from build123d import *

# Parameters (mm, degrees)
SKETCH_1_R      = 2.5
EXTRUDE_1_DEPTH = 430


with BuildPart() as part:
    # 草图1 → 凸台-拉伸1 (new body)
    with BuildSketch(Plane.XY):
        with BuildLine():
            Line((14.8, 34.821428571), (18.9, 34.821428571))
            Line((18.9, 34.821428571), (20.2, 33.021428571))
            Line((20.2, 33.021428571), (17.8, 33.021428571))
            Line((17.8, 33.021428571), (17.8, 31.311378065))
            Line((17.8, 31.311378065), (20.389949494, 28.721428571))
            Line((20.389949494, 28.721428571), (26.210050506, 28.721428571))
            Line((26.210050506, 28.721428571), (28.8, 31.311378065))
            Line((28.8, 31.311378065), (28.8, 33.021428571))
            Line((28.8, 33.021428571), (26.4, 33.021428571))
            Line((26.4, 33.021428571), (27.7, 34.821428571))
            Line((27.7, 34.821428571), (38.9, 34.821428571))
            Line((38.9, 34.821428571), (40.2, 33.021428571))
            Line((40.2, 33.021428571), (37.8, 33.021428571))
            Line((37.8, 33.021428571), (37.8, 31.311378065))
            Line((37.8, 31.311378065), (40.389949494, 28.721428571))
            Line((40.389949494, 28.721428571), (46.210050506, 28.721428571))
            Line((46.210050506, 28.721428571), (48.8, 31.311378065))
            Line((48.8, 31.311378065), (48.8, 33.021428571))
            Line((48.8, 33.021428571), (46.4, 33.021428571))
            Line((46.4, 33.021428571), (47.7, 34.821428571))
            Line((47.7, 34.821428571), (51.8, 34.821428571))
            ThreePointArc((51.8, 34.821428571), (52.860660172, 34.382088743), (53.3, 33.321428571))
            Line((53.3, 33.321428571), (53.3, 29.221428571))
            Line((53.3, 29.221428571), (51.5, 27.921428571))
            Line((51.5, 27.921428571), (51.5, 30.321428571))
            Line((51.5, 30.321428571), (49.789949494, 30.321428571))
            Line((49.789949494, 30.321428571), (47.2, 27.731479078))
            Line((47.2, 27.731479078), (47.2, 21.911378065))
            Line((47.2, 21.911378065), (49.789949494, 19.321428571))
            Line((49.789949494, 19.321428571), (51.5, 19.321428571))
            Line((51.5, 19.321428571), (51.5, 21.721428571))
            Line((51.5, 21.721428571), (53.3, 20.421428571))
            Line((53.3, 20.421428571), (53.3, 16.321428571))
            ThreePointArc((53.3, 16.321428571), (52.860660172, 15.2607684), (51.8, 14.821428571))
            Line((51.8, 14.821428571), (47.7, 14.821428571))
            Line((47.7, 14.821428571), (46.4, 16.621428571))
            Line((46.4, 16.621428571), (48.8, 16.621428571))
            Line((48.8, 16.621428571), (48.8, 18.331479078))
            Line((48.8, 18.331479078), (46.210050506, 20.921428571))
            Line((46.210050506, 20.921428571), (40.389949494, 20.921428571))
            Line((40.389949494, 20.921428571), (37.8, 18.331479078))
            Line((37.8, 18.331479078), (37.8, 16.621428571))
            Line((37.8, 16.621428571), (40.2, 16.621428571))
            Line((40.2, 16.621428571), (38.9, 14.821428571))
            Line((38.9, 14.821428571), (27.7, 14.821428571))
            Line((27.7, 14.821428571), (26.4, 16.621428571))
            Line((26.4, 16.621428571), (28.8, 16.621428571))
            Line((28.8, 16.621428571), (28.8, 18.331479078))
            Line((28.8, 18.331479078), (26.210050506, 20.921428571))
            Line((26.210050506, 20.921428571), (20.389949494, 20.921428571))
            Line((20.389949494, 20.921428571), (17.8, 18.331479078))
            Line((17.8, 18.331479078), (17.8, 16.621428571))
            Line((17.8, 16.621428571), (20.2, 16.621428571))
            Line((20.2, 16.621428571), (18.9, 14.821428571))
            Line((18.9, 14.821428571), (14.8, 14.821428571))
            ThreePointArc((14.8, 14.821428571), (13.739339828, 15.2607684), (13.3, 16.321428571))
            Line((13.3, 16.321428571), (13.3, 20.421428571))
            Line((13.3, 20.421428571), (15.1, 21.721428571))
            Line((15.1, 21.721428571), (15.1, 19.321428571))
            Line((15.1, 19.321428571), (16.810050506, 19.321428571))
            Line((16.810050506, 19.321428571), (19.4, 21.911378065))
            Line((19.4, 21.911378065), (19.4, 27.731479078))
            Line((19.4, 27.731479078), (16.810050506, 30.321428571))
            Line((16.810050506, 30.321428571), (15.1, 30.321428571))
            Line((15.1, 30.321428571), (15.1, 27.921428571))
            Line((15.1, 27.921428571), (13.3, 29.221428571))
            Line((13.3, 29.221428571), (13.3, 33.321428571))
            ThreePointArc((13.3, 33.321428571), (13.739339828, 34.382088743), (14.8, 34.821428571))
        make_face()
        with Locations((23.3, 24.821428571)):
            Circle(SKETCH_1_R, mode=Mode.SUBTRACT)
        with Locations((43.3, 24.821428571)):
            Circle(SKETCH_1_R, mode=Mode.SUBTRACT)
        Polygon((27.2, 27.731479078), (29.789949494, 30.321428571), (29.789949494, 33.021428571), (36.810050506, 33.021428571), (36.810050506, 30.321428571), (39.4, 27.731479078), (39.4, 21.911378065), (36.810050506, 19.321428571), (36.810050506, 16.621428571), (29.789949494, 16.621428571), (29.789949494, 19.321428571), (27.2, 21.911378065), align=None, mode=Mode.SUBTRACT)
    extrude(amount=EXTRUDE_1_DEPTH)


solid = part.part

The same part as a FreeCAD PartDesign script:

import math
import FreeCAD as App
import Part
import Sketcher
from FreeCAD import Vector
Q = App.Units.Quantity


def add_polygon(sketch, points):
    """Adds a closed chain of lines whose ends are joined by coincident constraints."""
    first, n = sketch.GeometryCount, len(points)
    for a, b in zip(points, points[1:] + points[:1]):
        sketch.addGeometry(Part.LineSegment(App.Vector(*a, 0), App.Vector(*b, 0)), False)
    for i in range(n):
        sketch.addConstraint(Sketcher.Constraint("Coincident", first + i, 2, first + (i + 1) % n, 1))

doc = App.newDocument("Part")
body = doc.addObject("PartDesign::Body", "Body")

sketch1 = doc.addObject("Sketcher::SketchObject", "Sketch")
body.addObject(sketch1)
sketch1.AttachmentSupport = (doc.XY_Plane, [""])
sketch1.MapMode = "FlatFace"
sketch1.addGeometry(Part.LineSegment(Vector(18.9, 34.8, 0), Vector(14.8, 34.8, 0)), False)
sketch1.addGeometry(Part.ArcOfCircle(Part.Circle(Vector(14.8, 33.3, 0), Vector(0, 0, 1), 1.5), math.radians(90), math.radians(180)), False)
sketch1.addGeometry(Part.LineSegment(Vector(13.3, 33.3, 0), Vector(13.3, 29.2, 0)), False)
sketch1.addGeometry(Part.LineSegment(Vector(13.3, 29.2, 0), Vector(15.1, 27.9, 0)), False)
sketch1.addGeometry(Part.LineSegment(Vector(15.1, 27.9, 0), Vector(15.1, 30.3, 0)), False)
sketch1.addGeometry(Part.LineSegment(Vector(15.1, 30.3, 0), Vector(16.8, 30.3, 0)), False)
sketch1.addGeometry(Part.LineSegment(Vector(16.8, 30.3, 0), Vector(19.4, 27.7, 0)), False)
sketch1.addGeometry(Part.LineSegment(Vector(19.4, 27.7, 0), Vector(19.4, 21.9, 0)), False)
sketch1.addGeometry(Part.LineSegment(Vector(19.4, 21.9, 0), Vector(16.8, 19.3, 0)), False)
sketch1.addGeometry(Part.LineSegment(Vector(16.8, 19.3, 0), Vector(15.1, 19.3, 0)), False)
sketch1.addGeometry(Part.LineSegment(Vector(15.1, 19.3, 0), Vector(15.1, 21.7, 0)), False)
sketch1.addGeometry(Part.LineSegment(Vector(15.1, 21.7, 0), Vector(13.3, 20.4, 0)), False)
sketch1.addGeometry(Part.LineSegment(Vector(13.3, 20.4, 0), Vector(13.3, 16.3, 0)), False)
sketch1.addGeometry(Part.ArcOfCircle(Part.Circle(Vector(14.8, 16.3, 0), Vector(0, 0, 1), 1.5), math.radians(-180), math.radians(-90)), False)
sketch1.addGeometry(Part.LineSegment(Vector(14.8, 14.8, 0), Vector(18.9, 14.8, 0)), False)
sketch1.addGeometry(Part.LineSegment(Vector(18.9, 14.8, 0), Vector(20.2, 16.6, 0)), False)
sketch1.addGeometry(Part.LineSegment(Vector(20.2, 16.6, 0), Vector(17.8, 16.6, 0)), False)
sketch1.addGeometry(Part.LineSegment(Vector(17.8, 16.6, 0), Vector(17.8, 18.3, 0)), False)
sketch1.addGeometry(Part.LineSegment(Vector(17.8, 18.3, 0), Vector(20.4, 20.9, 0)), False)
sketch1.addGeometry(Part.LineSegment(Vector(20.4, 20.9, 0), Vector(26.2, 20.9, 0)), False)
sketch1.addGeometry(Part.LineSegment(Vector(26.2, 20.9, 0), Vector(28.8, 18.3, 0)), False)
sketch1.addGeometry(Part.LineSegment(Vector(28.8, 18.3, 0), Vector(28.8, 16.6, 0)), False)
sketch1.addGeometry(Part.LineSegment(Vector(28.8, 16.6, 0), Vector(26.4, 16.6, 0)), False)
sketch1.addGeometry(Part.LineSegment(Vector(26.4, 16.6, 0), Vector(27.7, 14.8, 0)), False)
sketch1.addGeometry(Part.LineSegment(Vector(27.7, 14.8, 0), Vector(38.9, 14.8, 0)), False)
sketch1.addGeometry(Part.LineSegment(Vector(38.9, 14.8, 0), Vector(40.2, 16.6, 0)), False)
sketch1.addGeometry(Part.LineSegment(Vector(40.2, 16.6, 0), Vector(37.8, 16.6, 0)), False)
sketch1.addGeometry(Part.LineSegment(Vector(37.8, 16.6, 0), Vector(37.8, 18.3, 0)), False)
sketch1.addGeometry(Part.LineSegment(Vector(37.8, 18.3, 0), Vector(40.4, 20.9, 0)), False)
sketch1.addGeometry(Part.LineSegment(Vector(40.4, 20.9, 0), Vector(46.2, 20.9, 0)), False)
sketch1.addGeometry(Part.LineSegment(Vector(46.2, 20.9, 0), Vector(48.8, 18.3, 0)), False)
sketch1.addGeometry(Part.LineSegment(Vector(48.8, 18.3, 0), Vector(48.8, 16.6, 0)), False)
sketch1.addGeometry(Part.LineSegment(Vector(48.8, 16.6, 0), Vector(46.4, 16.6, 0)), False)
sketch1.addGeometry(Part.LineSegment(Vector(46.4, 16.6, 0), Vector(47.7, 14.8, 0)), False)
sketch1.addGeometry(Part.LineSegment(Vector(47.7, 14.8, 0), Vector(51.8, 14.8, 0)), False)
sketch1.addGeometry(Part.ArcOfCircle(Part.Circle(Vector(51.8, 16.3, 0), Vector(0, 0, 1), 1.5), math.radians(-90), math.radians(0)), False)
sketch1.addGeometry(Part.LineSegment(Vector(53.3, 16.3, 0), Vector(53.3, 20.4, 0)), False)
sketch1.addGeometry(Part.LineSegment(Vector(53.3, 20.4, 0), Vector(51.5, 21.7, 0)), False)
sketch1.addGeometry(Part.LineSegment(Vector(51.5, 21.7, 0), Vector(51.5, 19.3, 0)), False)
sketch1.addGeometry(Part.LineSegment(Vector(51.5, 19.3, 0), Vector(49.8, 19.3, 0)), False)
sketch1.addGeometry(Part.LineSegment(Vector(49.8, 19.3, 0), Vector(47.2, 21.9, 0)), False)
sketch1.addGeometry(Part.LineSegment(Vector(47.2, 21.9, 0), Vector(47.2, 27.7, 0)), False)
sketch1.addGeometry(Part.LineSegment(Vector(47.2, 27.7, 0), Vector(49.8, 30.3, 0)), False)
sketch1.addGeometry(Part.LineSegment(Vector(49.8, 30.3, 0), Vector(51.5, 30.3, 0)), False)
sketch1.addGeometry(Part.LineSegment(Vector(51.5, 30.3, 0), Vector(51.5, 27.9, 0)), False)
sketch1.addGeometry(Part.LineSegment(Vector(51.5, 27.9, 0), Vector(53.3, 29.2, 0)), False)
sketch1.addGeometry(Part.LineSegment(Vector(53.3, 29.2, 0), Vector(53.3, 33.3, 0)), False)
sketch1.addGeometry(Part.ArcOfCircle(Part.Circle(Vector(51.8, 33.3, 0), Vector(0, 0, 1), 1.5), math.radians(0), math.radians(90)), False)
sketch1.addGeometry(Part.LineSegment(Vector(51.8, 34.8, 0), Vector(47.7, 34.8, 0)), False)
sketch1.addGeometry(Part.LineSegment(Vector(47.7, 34.8, 0), Vector(46.4, 33, 0)), False)
sketch1.addGeometry(Part.LineSegment(Vector(46.4, 33, 0), Vector(48.8, 33, 0)), False)
sketch1.addGeometry(Part.LineSegment(Vector(48.8, 33, 0), Vector(48.8, 31.3, 0)), False)
sketch1.addGeometry(Part.LineSegment(Vector(48.8, 31.3, 0), Vector(46.2, 28.7, 0)), False)
sketch1.addGeometry(Part.LineSegment(Vector(46.2, 28.7, 0), Vector(40.4, 28.7, 0)), False)
sketch1.addGeometry(Part.LineSegment(Vector(40.4, 28.7, 0), Vector(37.8, 31.3, 0)), False)
sketch1.addGeometry(Part.LineSegment(Vector(37.8, 31.3, 0), Vector(37.8, 33, 0)), False)
sketch1.addGeometry(Part.LineSegment(Vector(37.8, 33, 0), Vector(40.2, 33, 0)), False)
sketch1.addGeometry(Part.LineSegment(Vector(40.2, 33, 0), Vector(38.9, 34.8, 0)), False)
sketch1.addGeometry(Part.LineSegment(Vector(38.9, 34.8, 0), Vector(27.7, 34.8, 0)), False)
sketch1.addGeometry(Part.LineSegment(Vector(27.7, 34.8, 0), Vector(26.4, 33, 0)), False)
sketch1.addGeometry(Part.LineSegment(Vector(26.4, 33, 0), Vector(28.8, 33, 0)), False)
sketch1.addGeometry(Part.LineSegment(Vector(28.8, 33, 0), Vector(28.8, 31.3, 0)), False)
sketch1.addGeometry(Part.LineSegment(Vector(28.8, 31.3, 0), Vector(26.2, 28.7, 0)), False)
sketch1.addGeometry(Part.LineSegment(Vector(26.2, 28.7, 0), Vector(20.4, 28.7, 0)), False)
sketch1.addGeometry(Part.LineSegment(Vector(20.4, 28.7, 0), Vector(17.8, 31.3, 0)), False)
sketch1.addGeometry(Part.LineSegment(Vector(17.8, 31.3, 0), Vector(17.8, 33, 0)), False)
sketch1.addGeometry(Part.LineSegment(Vector(17.8, 33, 0), Vector(20.2, 33, 0)), False)
sketch1.addGeometry(Part.LineSegment(Vector(20.2, 33, 0), Vector(18.9, 34.8, 0)), False)
sketch1.addGeometry(Part.Circle(Vector(43.3, 24.8, 0), Vector(0, 0, 1), 2.5), False)
sketch1.addGeometry(Part.Circle(Vector(23.3, 24.8, 0), Vector(0, 0, 1), 2.5), False)
add_polygon(sketch1, [(27.2, 27.7), (29.8, 30.3), (29.8, 33), (36.8, 33), (36.8, 30.3), (39.4, 27.7), (39.4, 21.9), (36.8, 19.3), (36.8, 16.6), (29.8, 16.6), (29.8, 19.3), (27.2, 21.9)])
sketch1.addConstraint(Sketcher.Constraint("Tangent", 0, 2, 1, 1))
sketch1.addConstraint(Sketcher.Constraint("Tangent", 1, 2, 2, 1))
sketch1.addConstraint(Sketcher.Constraint("Coincident", 2, 2, 3, 1))
sketch1.addConstraint(Sketcher.Constraint("Coincident", 3, 2, 4, 1))
sketch1.addConstraint(Sketcher.Constraint("Coincident", 4, 2, 5, 1))
sketch1.addConstraint(Sketcher.Constraint("Coincident", 5, 2, 6, 1))
sketch1.addConstraint(Sketcher.Constraint("Coincident", 6, 2, 7, 1))
sketch1.addConstraint(Sketcher.Constraint("Coincident", 7, 2, 8, 1))
sketch1.addConstraint(Sketcher.Constraint("Coincident", 8, 2, 9, 1))
sketch1.addConstraint(Sketcher.Constraint("Coincident", 9, 2, 10, 1))
sketch1.addConstraint(Sketcher.Constraint("Coincident", 10, 2, 11, 1))
sketch1.addConstraint(Sketcher.Constraint("Coincident", 11, 2, 12, 1))
sketch1.addConstraint(Sketcher.Constraint("Tangent", 12, 2, 13, 1))
sketch1.addConstraint(Sketcher.Constraint("Tangent", 13, 2, 14, 1))
sketch1.addConstraint(Sketcher.Constraint("Coincident", 14, 2, 15, 1))
sketch1.addConstraint(Sketcher.Constraint("Coincident", 15, 2, 16, 1))
sketch1.addConstraint(Sketcher.Constraint("Coincident", 16, 2, 17, 1))
sketch1.addConstraint(Sketcher.Constraint("Coincident", 17, 2, 18, 1))
sketch1.addConstraint(Sketcher.Constraint("Coincident", 18, 2, 19, 1))
sketch1.addConstraint(Sketcher.Constraint("Coincident", 19, 2, 20, 1))
sketch1.addConstraint(Sketcher.Constraint("Coincident", 20, 2, 21, 1))
sketch1.addConstraint(Sketcher.Constraint("Coincident", 21, 2, 22, 1))
sketch1.addConstraint(Sketcher.Constraint("Coincident", 22, 2, 23, 1))
sketch1.addConstraint(Sketcher.Constraint("Coincident", 23, 2, 24, 1))
sketch1.addConstraint(Sketcher.Constraint("Coincident", 24, 2, 25, 1))
sketch1.addConstraint(Sketcher.Constraint("Coincident", 25, 2, 26, 1))
sketch1.addConstraint(Sketcher.Constraint("Coincident", 26, 2, 27, 1))
sketch1.addConstraint(Sketcher.Constraint("Coincident", 27, 2, 28, 1))
sketch1.addConstraint(Sketcher.Constraint("Coincident", 28, 2, 29, 1))
sketch1.addConstraint(Sketcher.Constraint("Coincident", 29, 2, 30, 1))
sketch1.addConstraint(Sketcher.Constraint("Coincident", 30, 2, 31, 1))
sketch1.addConstraint(Sketcher.Constraint("Coincident", 31, 2, 32, 1))
sketch1.addConstraint(Sketcher.Constraint("Coincident", 32, 2, 33, 1))
sketch1.addConstraint(Sketcher.Constraint("Coincident", 33, 2, 34, 1))
sketch1.addConstraint(Sketcher.Constraint("Tangent", 34, 2, 35, 1))
sketch1.addConstraint(Sketcher.Constraint("Tangent", 35, 2, 36, 1))
sketch1.addConstraint(Sketcher.Constraint("Coincident", 36, 2, 37, 1))
sketch1.addConstraint(Sketcher.Constraint("Coincident", 37, 2, 38, 1))
sketch1.addConstraint(Sketcher.Constraint("Coincident", 38, 2, 39, 1))
sketch1.addConstraint(Sketcher.Constraint("Coincident", 39, 2, 40, 1))
sketch1.addConstraint(Sketcher.Constraint("Coincident", 40, 2, 41, 1))
sketch1.addConstraint(Sketcher.Constraint("Coincident", 41, 2, 42, 1))
sketch1.addConstraint(Sketcher.Constraint("Coincident", 42, 2, 43, 1))
sketch1.addConstraint(Sketcher.Constraint("Coincident", 43, 2, 44, 1))
sketch1.addConstraint(Sketcher.Constraint("Coincident", 44, 2, 45, 1))
sketch1.addConstraint(Sketcher.Constraint("Coincident", 45, 2, 46, 1))
sketch1.addConstraint(Sketcher.Constraint("Tangent", 46, 2, 47, 1))
sketch1.addConstraint(Sketcher.Constraint("Tangent", 47, 2, 48, 1))
sketch1.addConstraint(Sketcher.Constraint("Coincident", 48, 2, 49, 1))
sketch1.addConstraint(Sketcher.Constraint("Coincident", 49, 2, 50, 1))
sketch1.addConstraint(Sketcher.Constraint("Coincident", 50, 2, 51, 1))
sketch1.addConstraint(Sketcher.Constraint("Coincident", 51, 2, 52, 1))
sketch1.addConstraint(Sketcher.Constraint("Coincident", 52, 2, 53, 1))
sketch1.addConstraint(Sketcher.Constraint("Coincident", 53, 2, 54, 1))
sketch1.addConstraint(Sketcher.Constraint("Coincident", 54, 2, 55, 1))
sketch1.addConstraint(Sketcher.Constraint("Coincident", 55, 2, 56, 1))
sketch1.addConstraint(Sketcher.Constraint("Coincident", 56, 2, 57, 1))
sketch1.addConstraint(Sketcher.Constraint("Coincident", 57, 2, 58, 1))
sketch1.addConstraint(Sketcher.Constraint("Coincident", 58, 2, 59, 1))
sketch1.addConstraint(Sketcher.Constraint("Coincident", 59, 2, 60, 1))
sketch1.addConstraint(Sketcher.Constraint("Coincident", 60, 2, 61, 1))
sketch1.addConstraint(Sketcher.Constraint("Coincident", 61, 2, 62, 1))
sketch1.addConstraint(Sketcher.Constraint("Coincident", 62, 2, 63, 1))
sketch1.addConstraint(Sketcher.Constraint("Coincident", 63, 2, 64, 1))
sketch1.addConstraint(Sketcher.Constraint("Coincident", 64, 2, 65, 1))
sketch1.addConstraint(Sketcher.Constraint("Coincident", 65, 2, 66, 1))
sketch1.addConstraint(Sketcher.Constraint("Coincident", 66, 2, 67, 1))
sketch1.addConstraint(Sketcher.Constraint("Coincident", 67, 2, 0, 1))
sketch1.addConstraint(Sketcher.Constraint("Horizontal", 0))
sketch1.addConstraint(Sketcher.Constraint("Vertical", 2))
sketch1.addConstraint(Sketcher.Constraint("Vertical", 4))
sketch1.addConstraint(Sketcher.Constraint("Horizontal", 5))
sketch1.addConstraint(Sketcher.Constraint("Vertical", 7))
sketch1.addConstraint(Sketcher.Constraint("Horizontal", 9))
sketch1.addConstraint(Sketcher.Constraint("Vertical", 10))
sketch1.addConstraint(Sketcher.Constraint("Vertical", 12))
sketch1.addConstraint(Sketcher.Constraint("Horizontal", 14))
sketch1.addConstraint(Sketcher.Constraint("Horizontal", 16))
sketch1.addConstraint(Sketcher.Constraint("Vertical", 17))
sketch1.addConstraint(Sketcher.Constraint("Horizontal", 19))
sketch1.addConstraint(Sketcher.Constraint("Vertical", 21))
sketch1.addConstraint(Sketcher.Constraint("Horizontal", 22))
sketch1.addConstraint(Sketcher.Constraint("Horizontal", 24))
sketch1.addConstraint(Sketcher.Constraint("Horizontal", 26))
sketch1.addConstraint(Sketcher.Constraint("Vertical", 27))
sketch1.addConstraint(Sketcher.Constraint("Horizontal", 29))
sketch1.addConstraint(Sketcher.Constraint("Vertical", 31))
sketch1.addConstraint(Sketcher.Constraint("Horizontal", 32))
sketch1.addConstraint(Sketcher.Constraint("Horizontal", 34))
sketch1.addConstraint(Sketcher.Constraint("Vertical", 36))
sketch1.addConstraint(Sketcher.Constraint("Vertical", 38))
sketch1.addConstraint(Sketcher.Constraint("Horizontal", 39))
sketch1.addConstraint(Sketcher.Constraint("Vertical", 41))
sketch1.addConstraint(Sketcher.Constraint("Horizontal", 43))
sketch1.addConstraint(Sketcher.Constraint("Vertical", 44))
sketch1.addConstraint(Sketcher.Constraint("Vertical", 46))
sketch1.addConstraint(Sketcher.Constraint("Horizontal", 48))
sketch1.addConstraint(Sketcher.Constraint("Horizontal", 50))
sketch1.addConstraint(Sketcher.Constraint("Vertical", 51))
sketch1.addConstraint(Sketcher.Constraint("Horizontal", 53))
sketch1.addConstraint(Sketcher.Constraint("Vertical", 55))
sketch1.addConstraint(Sketcher.Constraint("Horizontal", 56))
sketch1.addConstraint(Sketcher.Constraint("Horizontal", 58))
sketch1.addConstraint(Sketcher.Constraint("Horizontal", 60))
sketch1.addConstraint(Sketcher.Constraint("Vertical", 61))
sketch1.addConstraint(Sketcher.Constraint("Horizontal", 63))
sketch1.addConstraint(Sketcher.Constraint("Vertical", 65))
sketch1.addConstraint(Sketcher.Constraint("Horizontal", 66))
sketch1.addConstraint(Sketcher.Constraint("Vertical", 71))
sketch1.addConstraint(Sketcher.Constraint("Horizontal", 72))
sketch1.addConstraint(Sketcher.Constraint("Vertical", 73))
sketch1.addConstraint(Sketcher.Constraint("Vertical", 75))
sketch1.addConstraint(Sketcher.Constraint("Vertical", 77))
sketch1.addConstraint(Sketcher.Constraint("Horizontal", 78))
sketch1.addConstraint(Sketcher.Constraint("Vertical", 79))
sketch1.addConstraint(Sketcher.Constraint("Vertical", 81))
sketch1.addConstraint(Sketcher.Constraint("Equal", 1, 13))
sketch1.addConstraint(Sketcher.Constraint("Equal", 13, 35))
sketch1.addConstraint(Sketcher.Constraint("Equal", 35, 47))
sketch1.addConstraint(Sketcher.Constraint("Equal", 68, 69))
sketch1.addConstraint(Sketcher.Constraint("Perpendicular", 6, 8))
sketch1.addConstraint(Sketcher.Constraint("Perpendicular", 3, 15))
sketch1.addConstraint(Sketcher.Constraint("Parallel", 8, 18))
sketch1.addConstraint(Sketcher.Constraint("Perpendicular", 18, 20))
sketch1.addConstraint(Sketcher.Constraint("Perpendicular", 11, 23))
sketch1.addConstraint(Sketcher.Constraint("Parallel", 15, 25))
sketch1.addConstraint(Sketcher.Constraint("Perpendicular", 20, 28))
sketch1.addConstraint(Sketcher.Constraint("Perpendicular", 28, 30))
sketch1.addConstraint(Sketcher.Constraint("Parallel", 23, 33))
sketch1.addConstraint(Sketcher.Constraint("Perpendicular", 25, 37))
sketch1.addConstraint(Sketcher.Constraint("Parallel", 30, 40))
sketch1.addConstraint(Sketcher.Constraint("Perpendicular", 40, 42))
sketch1.addConstraint(Sketcher.Constraint("Perpendicular", 33, 45))
sketch1.addConstraint(Sketcher.Constraint("Perpendicular", 37, 49))
sketch1.addConstraint(Sketcher.Constraint("Parallel", 42, 52))
sketch1.addConstraint(Sketcher.Constraint("Perpendicular", 52, 54))
sketch1.addConstraint(Sketcher.Constraint("Perpendicular", 45, 57))
sketch1.addConstraint(Sketcher.Constraint("Parallel", 49, 59))
sketch1.addConstraint(Sketcher.Constraint("Perpendicular", 54, 62))
sketch1.addConstraint(Sketcher.Constraint("Perpendicular", 62, 64))
sketch1.addConstraint(Sketcher.Constraint("Parallel", 57, 67))
sketch1.addConstraint(Sketcher.Constraint("Perpendicular", 64, 70))
sketch1.addConstraint(Sketcher.Constraint("Perpendicular", 70, 74))
sketch1.addConstraint(Sketcher.Constraint("Perpendicular", 74, 76))
sketch1.addConstraint(Sketcher.Constraint("Perpendicular", 76, 80))
sketch1.addConstraint(Sketcher.Constraint("Horizontal", 13, 3, 35, 3))
sketch1.addConstraint(Sketcher.Constraint("Horizontal", 1, 3, 47, 3))
sketch1.addConstraint(Sketcher.Constraint("Horizontal", 68, 3, 69, 3))
sketch1.addConstraint(Sketcher.Constraint("Horizontal", 17, 2, 20, 2))
sketch1.addConstraint(Sketcher.Constraint("Horizontal", 16, 2, 21, 2))
sketch1.addConstraint(Sketcher.Constraint("Horizontal", 14, 2, 23, 2))
sketch1.addConstraint(Sketcher.Constraint("Horizontal", 22, 2, 25, 2))
sketch1.addConstraint(Sketcher.Constraint("Horizontal", 20, 2, 27, 2))
sketch1.addConstraint(Sketcher.Constraint("Horizontal", 19, 2, 28, 2))
sketch1.addConstraint(Sketcher.Constraint("Horizontal", 27, 2, 30, 2))
sketch1.addConstraint(Sketcher.Constraint("Horizontal", 26, 2, 31, 2))
sketch1.addConstraint(Sketcher.Constraint("Horizontal", 11, 2, 36, 2))
sketch1.addConstraint(Sketcher.Constraint("Horizontal", 10, 2, 37, 2))
sketch1.addConstraint(Sketcher.Constraint("Horizontal", 9, 2, 38, 2))
sketch1.addConstraint(Sketcher.Constraint("Horizontal", 7, 2, 40, 2))
sketch1.addConstraint(Sketcher.Constraint("Horizontal", 6, 2, 41, 2))
sketch1.addConstraint(Sketcher.Constraint("Horizontal", 5, 2, 42, 2))
sketch1.addConstraint(Sketcher.Constraint("Horizontal", 3, 2, 44, 2))
sketch1.addConstraint(Sketcher.Constraint("Horizontal", 2, 2, 45, 2))
sketch1.addConstraint(Sketcher.Constraint("Horizontal", 51, 2, 54, 2))
sketch1.addConstraint(Sketcher.Constraint("Horizontal", 50, 2, 55, 2))
sketch1.addConstraint(Sketcher.Constraint("Horizontal", 48, 2, 57, 2))
sketch1.addConstraint(Sketcher.Constraint("Horizontal", 56, 2, 59, 2))
sketch1.addConstraint(Sketcher.Constraint("Horizontal", 54, 2, 61, 2))
sketch1.addConstraint(Sketcher.Constraint("Horizontal", 53, 2, 62, 2))
sketch1.addConstraint(Sketcher.Constraint("Horizontal", 61, 2, 64, 2))
sketch1.addConstraint(Sketcher.Constraint("Horizontal", 60, 2, 65, 2))
sketch1.addConstraint(Sketcher.Constraint("Horizontal", 43, 2, 70, 2))
sketch1.addConstraint(Sketcher.Constraint("Horizontal", 66, 2, 71, 2))
sketch1.addConstraint(Sketcher.Constraint("Horizontal", 70, 2, 73, 2))
sketch1.addConstraint(Sketcher.Constraint("Horizontal", 41, 2, 74, 2))
sketch1.addConstraint(Sketcher.Constraint("Horizontal", 40, 2, 75, 2))
sketch1.addConstraint(Sketcher.Constraint("Horizontal", 39, 2, 76, 2))
sketch1.addConstraint(Sketcher.Constraint("Horizontal", 32, 2, 77, 2))
sketch1.addConstraint(Sketcher.Constraint("Horizontal", 76, 2, 79, 2))
sketch1.addConstraint(Sketcher.Constraint("Horizontal", 75, 2, 80, 2))
sketch1.addConstraint(Sketcher.Constraint("Horizontal", 74, 2, 81, 2))
sketch1.addConstraint(Sketcher.Constraint("Vertical", 1, 3, 13, 3))
sketch1.addConstraint(Sketcher.Constraint("Vertical", 35, 3, 47, 3))
sketch1.addConstraint(Sketcher.Constraint("Vertical", 5, 2, 8, 2))
sketch1.addConstraint(Sketcher.Constraint("Vertical", 4, 2, 9, 2))
sketch1.addConstraint(Sketcher.Constraint("Vertical", 39, 2, 42, 2))
sketch1.addConstraint(Sketcher.Constraint("Vertical", 38, 2, 43, 2))
sketch1.addConstraint(Sketcher.Constraint("Vertical", 33, 2, 48, 2))
sketch1.addConstraint(Sketcher.Constraint("Vertical", 32, 2, 49, 2))
sketch1.addConstraint(Sketcher.Constraint("Vertical", 31, 2, 50, 2))
sketch1.addConstraint(Sketcher.Constraint("Vertical", 29, 2, 52, 2))
sketch1.addConstraint(Sketcher.Constraint("Vertical", 28, 2, 53, 2))
sketch1.addConstraint(Sketcher.Constraint("Vertical", 25, 2, 56, 2))
sketch1.addConstraint(Sketcher.Constraint("Vertical", 23, 2, 58, 2))
sketch1.addConstraint(Sketcher.Constraint("Vertical", 21, 2, 60, 2))
sketch1.addConstraint(Sketcher.Constraint("Vertical", 18, 2, 63, 2))
sketch1.addConstraint(Sketcher.Constraint("Vertical", 15, 2, 66, 2))
sketch1.addConstraint(Sketcher.Constraint("Equal", 16, 22))
sketch1.addConstraint(Sketcher.Constraint("Equal", 22, 26))
sketch1.addConstraint(Sketcher.Constraint("Equal", 19, 29))
sketch1.addConstraint(Sketcher.Constraint("Equal", 26, 32))
sketch1.addConstraint(Sketcher.Constraint("Equal", 14, 34))
sketch1.addConstraint(Sketcher.Constraint("Equal", 9, 39))
sketch1.addConstraint(Sketcher.Constraint("Equal", 48, 2))
sketch1.addConstraint(Sketcher.Constraint("Equal", 66, 4))
sketch1.addConstraint(Sketcher.Constraint("Equal", 63, 7))
sketch1.addConstraint(Sketcher.Constraint("Equal", 4, 10))
sketch1.addConstraint(Sketcher.Constraint("Equal", 2, 12))
sketch1.addConstraint(Sketcher.Constraint("Equal", 43, 17))
sketch1.addConstraint(Sketcher.Constraint("Equal", 31, 51))
sketch1.addConstraint(Sketcher.Constraint("Equal", 11, 15))
sketch1.addConstraint(Sketcher.Constraint("Equal", 8, 18))
sketch1.addConstraint(Sketcher.Constraint("Diameter", 68, Q("5 mm")))
sketch1.addConstraint(Sketcher.Constraint("Radius", 1, Q("1.5 mm")))
sketch1.addConstraint(Sketcher.Constraint("DistanceX", 0, 2, 0, 1, Q("4.1 mm")))
sketch1.addConstraint(Sketcher.Constraint("DistanceX", 16, 2, 16, 1, Q("2.4 mm")))
sketch1.addConstraint(Sketcher.Constraint("DistanceX", 24, 1, 24, 2, Q("11.2 mm")))
sketch1.addConstraint(Sketcher.Constraint("DistanceY", 71, 1, 71, 2, Q("2.7 mm")))
sketch1.addConstraint(Sketcher.Constraint("DistanceX", -1, 1, 1, 3, Q("14.8 mm")))
sketch1.addConstraint(Sketcher.Constraint("DistanceX", -1, 1, 35, 3, Q("51.8 mm")))
sketch1.addConstraint(Sketcher.Constraint("DistanceX", -1, 1, 68, 3, Q("43.3 mm")))
sketch1.addConstraint(Sketcher.Constraint("DistanceX", -1, 1, 69, 3, Q("23.3 mm")))
sketch1.addConstraint(Sketcher.Constraint("DistanceX", -1, 1, 3, 2, Q("15.1 mm")))
sketch1.addConstraint(Sketcher.Constraint("DistanceX", -1, 1, 6, 2, Q("19.4 mm")))
sketch1.addConstraint(Sketcher.Constraint("DistanceX", -1, 1, 74, 2, Q("39.4 mm")))
sketch1.addConstraint(Sketcher.Constraint("DistanceX", -1, 1, 80, 2, Q("27.2 mm")))
sketch1.addConstraint(Sketcher.Constraint("DistanceX", 19, 1, 19, 2, Q("5.820101 mm")))
sketch1.addConstraint(Sketcher.Constraint("DistanceY", -1, 1, 1, 3, Q("33.321429 mm")))
sketch1.addConstraint(Sketcher.Constraint("DistanceY", -1, 1, 68, 3, Q("24.821429 mm")))
pad1 = doc.addObject("PartDesign::Pad", "Pad")
body.addObject(pad1)
pad1.Profile = sketch1
pad1.Length = 430

doc.recompute()
